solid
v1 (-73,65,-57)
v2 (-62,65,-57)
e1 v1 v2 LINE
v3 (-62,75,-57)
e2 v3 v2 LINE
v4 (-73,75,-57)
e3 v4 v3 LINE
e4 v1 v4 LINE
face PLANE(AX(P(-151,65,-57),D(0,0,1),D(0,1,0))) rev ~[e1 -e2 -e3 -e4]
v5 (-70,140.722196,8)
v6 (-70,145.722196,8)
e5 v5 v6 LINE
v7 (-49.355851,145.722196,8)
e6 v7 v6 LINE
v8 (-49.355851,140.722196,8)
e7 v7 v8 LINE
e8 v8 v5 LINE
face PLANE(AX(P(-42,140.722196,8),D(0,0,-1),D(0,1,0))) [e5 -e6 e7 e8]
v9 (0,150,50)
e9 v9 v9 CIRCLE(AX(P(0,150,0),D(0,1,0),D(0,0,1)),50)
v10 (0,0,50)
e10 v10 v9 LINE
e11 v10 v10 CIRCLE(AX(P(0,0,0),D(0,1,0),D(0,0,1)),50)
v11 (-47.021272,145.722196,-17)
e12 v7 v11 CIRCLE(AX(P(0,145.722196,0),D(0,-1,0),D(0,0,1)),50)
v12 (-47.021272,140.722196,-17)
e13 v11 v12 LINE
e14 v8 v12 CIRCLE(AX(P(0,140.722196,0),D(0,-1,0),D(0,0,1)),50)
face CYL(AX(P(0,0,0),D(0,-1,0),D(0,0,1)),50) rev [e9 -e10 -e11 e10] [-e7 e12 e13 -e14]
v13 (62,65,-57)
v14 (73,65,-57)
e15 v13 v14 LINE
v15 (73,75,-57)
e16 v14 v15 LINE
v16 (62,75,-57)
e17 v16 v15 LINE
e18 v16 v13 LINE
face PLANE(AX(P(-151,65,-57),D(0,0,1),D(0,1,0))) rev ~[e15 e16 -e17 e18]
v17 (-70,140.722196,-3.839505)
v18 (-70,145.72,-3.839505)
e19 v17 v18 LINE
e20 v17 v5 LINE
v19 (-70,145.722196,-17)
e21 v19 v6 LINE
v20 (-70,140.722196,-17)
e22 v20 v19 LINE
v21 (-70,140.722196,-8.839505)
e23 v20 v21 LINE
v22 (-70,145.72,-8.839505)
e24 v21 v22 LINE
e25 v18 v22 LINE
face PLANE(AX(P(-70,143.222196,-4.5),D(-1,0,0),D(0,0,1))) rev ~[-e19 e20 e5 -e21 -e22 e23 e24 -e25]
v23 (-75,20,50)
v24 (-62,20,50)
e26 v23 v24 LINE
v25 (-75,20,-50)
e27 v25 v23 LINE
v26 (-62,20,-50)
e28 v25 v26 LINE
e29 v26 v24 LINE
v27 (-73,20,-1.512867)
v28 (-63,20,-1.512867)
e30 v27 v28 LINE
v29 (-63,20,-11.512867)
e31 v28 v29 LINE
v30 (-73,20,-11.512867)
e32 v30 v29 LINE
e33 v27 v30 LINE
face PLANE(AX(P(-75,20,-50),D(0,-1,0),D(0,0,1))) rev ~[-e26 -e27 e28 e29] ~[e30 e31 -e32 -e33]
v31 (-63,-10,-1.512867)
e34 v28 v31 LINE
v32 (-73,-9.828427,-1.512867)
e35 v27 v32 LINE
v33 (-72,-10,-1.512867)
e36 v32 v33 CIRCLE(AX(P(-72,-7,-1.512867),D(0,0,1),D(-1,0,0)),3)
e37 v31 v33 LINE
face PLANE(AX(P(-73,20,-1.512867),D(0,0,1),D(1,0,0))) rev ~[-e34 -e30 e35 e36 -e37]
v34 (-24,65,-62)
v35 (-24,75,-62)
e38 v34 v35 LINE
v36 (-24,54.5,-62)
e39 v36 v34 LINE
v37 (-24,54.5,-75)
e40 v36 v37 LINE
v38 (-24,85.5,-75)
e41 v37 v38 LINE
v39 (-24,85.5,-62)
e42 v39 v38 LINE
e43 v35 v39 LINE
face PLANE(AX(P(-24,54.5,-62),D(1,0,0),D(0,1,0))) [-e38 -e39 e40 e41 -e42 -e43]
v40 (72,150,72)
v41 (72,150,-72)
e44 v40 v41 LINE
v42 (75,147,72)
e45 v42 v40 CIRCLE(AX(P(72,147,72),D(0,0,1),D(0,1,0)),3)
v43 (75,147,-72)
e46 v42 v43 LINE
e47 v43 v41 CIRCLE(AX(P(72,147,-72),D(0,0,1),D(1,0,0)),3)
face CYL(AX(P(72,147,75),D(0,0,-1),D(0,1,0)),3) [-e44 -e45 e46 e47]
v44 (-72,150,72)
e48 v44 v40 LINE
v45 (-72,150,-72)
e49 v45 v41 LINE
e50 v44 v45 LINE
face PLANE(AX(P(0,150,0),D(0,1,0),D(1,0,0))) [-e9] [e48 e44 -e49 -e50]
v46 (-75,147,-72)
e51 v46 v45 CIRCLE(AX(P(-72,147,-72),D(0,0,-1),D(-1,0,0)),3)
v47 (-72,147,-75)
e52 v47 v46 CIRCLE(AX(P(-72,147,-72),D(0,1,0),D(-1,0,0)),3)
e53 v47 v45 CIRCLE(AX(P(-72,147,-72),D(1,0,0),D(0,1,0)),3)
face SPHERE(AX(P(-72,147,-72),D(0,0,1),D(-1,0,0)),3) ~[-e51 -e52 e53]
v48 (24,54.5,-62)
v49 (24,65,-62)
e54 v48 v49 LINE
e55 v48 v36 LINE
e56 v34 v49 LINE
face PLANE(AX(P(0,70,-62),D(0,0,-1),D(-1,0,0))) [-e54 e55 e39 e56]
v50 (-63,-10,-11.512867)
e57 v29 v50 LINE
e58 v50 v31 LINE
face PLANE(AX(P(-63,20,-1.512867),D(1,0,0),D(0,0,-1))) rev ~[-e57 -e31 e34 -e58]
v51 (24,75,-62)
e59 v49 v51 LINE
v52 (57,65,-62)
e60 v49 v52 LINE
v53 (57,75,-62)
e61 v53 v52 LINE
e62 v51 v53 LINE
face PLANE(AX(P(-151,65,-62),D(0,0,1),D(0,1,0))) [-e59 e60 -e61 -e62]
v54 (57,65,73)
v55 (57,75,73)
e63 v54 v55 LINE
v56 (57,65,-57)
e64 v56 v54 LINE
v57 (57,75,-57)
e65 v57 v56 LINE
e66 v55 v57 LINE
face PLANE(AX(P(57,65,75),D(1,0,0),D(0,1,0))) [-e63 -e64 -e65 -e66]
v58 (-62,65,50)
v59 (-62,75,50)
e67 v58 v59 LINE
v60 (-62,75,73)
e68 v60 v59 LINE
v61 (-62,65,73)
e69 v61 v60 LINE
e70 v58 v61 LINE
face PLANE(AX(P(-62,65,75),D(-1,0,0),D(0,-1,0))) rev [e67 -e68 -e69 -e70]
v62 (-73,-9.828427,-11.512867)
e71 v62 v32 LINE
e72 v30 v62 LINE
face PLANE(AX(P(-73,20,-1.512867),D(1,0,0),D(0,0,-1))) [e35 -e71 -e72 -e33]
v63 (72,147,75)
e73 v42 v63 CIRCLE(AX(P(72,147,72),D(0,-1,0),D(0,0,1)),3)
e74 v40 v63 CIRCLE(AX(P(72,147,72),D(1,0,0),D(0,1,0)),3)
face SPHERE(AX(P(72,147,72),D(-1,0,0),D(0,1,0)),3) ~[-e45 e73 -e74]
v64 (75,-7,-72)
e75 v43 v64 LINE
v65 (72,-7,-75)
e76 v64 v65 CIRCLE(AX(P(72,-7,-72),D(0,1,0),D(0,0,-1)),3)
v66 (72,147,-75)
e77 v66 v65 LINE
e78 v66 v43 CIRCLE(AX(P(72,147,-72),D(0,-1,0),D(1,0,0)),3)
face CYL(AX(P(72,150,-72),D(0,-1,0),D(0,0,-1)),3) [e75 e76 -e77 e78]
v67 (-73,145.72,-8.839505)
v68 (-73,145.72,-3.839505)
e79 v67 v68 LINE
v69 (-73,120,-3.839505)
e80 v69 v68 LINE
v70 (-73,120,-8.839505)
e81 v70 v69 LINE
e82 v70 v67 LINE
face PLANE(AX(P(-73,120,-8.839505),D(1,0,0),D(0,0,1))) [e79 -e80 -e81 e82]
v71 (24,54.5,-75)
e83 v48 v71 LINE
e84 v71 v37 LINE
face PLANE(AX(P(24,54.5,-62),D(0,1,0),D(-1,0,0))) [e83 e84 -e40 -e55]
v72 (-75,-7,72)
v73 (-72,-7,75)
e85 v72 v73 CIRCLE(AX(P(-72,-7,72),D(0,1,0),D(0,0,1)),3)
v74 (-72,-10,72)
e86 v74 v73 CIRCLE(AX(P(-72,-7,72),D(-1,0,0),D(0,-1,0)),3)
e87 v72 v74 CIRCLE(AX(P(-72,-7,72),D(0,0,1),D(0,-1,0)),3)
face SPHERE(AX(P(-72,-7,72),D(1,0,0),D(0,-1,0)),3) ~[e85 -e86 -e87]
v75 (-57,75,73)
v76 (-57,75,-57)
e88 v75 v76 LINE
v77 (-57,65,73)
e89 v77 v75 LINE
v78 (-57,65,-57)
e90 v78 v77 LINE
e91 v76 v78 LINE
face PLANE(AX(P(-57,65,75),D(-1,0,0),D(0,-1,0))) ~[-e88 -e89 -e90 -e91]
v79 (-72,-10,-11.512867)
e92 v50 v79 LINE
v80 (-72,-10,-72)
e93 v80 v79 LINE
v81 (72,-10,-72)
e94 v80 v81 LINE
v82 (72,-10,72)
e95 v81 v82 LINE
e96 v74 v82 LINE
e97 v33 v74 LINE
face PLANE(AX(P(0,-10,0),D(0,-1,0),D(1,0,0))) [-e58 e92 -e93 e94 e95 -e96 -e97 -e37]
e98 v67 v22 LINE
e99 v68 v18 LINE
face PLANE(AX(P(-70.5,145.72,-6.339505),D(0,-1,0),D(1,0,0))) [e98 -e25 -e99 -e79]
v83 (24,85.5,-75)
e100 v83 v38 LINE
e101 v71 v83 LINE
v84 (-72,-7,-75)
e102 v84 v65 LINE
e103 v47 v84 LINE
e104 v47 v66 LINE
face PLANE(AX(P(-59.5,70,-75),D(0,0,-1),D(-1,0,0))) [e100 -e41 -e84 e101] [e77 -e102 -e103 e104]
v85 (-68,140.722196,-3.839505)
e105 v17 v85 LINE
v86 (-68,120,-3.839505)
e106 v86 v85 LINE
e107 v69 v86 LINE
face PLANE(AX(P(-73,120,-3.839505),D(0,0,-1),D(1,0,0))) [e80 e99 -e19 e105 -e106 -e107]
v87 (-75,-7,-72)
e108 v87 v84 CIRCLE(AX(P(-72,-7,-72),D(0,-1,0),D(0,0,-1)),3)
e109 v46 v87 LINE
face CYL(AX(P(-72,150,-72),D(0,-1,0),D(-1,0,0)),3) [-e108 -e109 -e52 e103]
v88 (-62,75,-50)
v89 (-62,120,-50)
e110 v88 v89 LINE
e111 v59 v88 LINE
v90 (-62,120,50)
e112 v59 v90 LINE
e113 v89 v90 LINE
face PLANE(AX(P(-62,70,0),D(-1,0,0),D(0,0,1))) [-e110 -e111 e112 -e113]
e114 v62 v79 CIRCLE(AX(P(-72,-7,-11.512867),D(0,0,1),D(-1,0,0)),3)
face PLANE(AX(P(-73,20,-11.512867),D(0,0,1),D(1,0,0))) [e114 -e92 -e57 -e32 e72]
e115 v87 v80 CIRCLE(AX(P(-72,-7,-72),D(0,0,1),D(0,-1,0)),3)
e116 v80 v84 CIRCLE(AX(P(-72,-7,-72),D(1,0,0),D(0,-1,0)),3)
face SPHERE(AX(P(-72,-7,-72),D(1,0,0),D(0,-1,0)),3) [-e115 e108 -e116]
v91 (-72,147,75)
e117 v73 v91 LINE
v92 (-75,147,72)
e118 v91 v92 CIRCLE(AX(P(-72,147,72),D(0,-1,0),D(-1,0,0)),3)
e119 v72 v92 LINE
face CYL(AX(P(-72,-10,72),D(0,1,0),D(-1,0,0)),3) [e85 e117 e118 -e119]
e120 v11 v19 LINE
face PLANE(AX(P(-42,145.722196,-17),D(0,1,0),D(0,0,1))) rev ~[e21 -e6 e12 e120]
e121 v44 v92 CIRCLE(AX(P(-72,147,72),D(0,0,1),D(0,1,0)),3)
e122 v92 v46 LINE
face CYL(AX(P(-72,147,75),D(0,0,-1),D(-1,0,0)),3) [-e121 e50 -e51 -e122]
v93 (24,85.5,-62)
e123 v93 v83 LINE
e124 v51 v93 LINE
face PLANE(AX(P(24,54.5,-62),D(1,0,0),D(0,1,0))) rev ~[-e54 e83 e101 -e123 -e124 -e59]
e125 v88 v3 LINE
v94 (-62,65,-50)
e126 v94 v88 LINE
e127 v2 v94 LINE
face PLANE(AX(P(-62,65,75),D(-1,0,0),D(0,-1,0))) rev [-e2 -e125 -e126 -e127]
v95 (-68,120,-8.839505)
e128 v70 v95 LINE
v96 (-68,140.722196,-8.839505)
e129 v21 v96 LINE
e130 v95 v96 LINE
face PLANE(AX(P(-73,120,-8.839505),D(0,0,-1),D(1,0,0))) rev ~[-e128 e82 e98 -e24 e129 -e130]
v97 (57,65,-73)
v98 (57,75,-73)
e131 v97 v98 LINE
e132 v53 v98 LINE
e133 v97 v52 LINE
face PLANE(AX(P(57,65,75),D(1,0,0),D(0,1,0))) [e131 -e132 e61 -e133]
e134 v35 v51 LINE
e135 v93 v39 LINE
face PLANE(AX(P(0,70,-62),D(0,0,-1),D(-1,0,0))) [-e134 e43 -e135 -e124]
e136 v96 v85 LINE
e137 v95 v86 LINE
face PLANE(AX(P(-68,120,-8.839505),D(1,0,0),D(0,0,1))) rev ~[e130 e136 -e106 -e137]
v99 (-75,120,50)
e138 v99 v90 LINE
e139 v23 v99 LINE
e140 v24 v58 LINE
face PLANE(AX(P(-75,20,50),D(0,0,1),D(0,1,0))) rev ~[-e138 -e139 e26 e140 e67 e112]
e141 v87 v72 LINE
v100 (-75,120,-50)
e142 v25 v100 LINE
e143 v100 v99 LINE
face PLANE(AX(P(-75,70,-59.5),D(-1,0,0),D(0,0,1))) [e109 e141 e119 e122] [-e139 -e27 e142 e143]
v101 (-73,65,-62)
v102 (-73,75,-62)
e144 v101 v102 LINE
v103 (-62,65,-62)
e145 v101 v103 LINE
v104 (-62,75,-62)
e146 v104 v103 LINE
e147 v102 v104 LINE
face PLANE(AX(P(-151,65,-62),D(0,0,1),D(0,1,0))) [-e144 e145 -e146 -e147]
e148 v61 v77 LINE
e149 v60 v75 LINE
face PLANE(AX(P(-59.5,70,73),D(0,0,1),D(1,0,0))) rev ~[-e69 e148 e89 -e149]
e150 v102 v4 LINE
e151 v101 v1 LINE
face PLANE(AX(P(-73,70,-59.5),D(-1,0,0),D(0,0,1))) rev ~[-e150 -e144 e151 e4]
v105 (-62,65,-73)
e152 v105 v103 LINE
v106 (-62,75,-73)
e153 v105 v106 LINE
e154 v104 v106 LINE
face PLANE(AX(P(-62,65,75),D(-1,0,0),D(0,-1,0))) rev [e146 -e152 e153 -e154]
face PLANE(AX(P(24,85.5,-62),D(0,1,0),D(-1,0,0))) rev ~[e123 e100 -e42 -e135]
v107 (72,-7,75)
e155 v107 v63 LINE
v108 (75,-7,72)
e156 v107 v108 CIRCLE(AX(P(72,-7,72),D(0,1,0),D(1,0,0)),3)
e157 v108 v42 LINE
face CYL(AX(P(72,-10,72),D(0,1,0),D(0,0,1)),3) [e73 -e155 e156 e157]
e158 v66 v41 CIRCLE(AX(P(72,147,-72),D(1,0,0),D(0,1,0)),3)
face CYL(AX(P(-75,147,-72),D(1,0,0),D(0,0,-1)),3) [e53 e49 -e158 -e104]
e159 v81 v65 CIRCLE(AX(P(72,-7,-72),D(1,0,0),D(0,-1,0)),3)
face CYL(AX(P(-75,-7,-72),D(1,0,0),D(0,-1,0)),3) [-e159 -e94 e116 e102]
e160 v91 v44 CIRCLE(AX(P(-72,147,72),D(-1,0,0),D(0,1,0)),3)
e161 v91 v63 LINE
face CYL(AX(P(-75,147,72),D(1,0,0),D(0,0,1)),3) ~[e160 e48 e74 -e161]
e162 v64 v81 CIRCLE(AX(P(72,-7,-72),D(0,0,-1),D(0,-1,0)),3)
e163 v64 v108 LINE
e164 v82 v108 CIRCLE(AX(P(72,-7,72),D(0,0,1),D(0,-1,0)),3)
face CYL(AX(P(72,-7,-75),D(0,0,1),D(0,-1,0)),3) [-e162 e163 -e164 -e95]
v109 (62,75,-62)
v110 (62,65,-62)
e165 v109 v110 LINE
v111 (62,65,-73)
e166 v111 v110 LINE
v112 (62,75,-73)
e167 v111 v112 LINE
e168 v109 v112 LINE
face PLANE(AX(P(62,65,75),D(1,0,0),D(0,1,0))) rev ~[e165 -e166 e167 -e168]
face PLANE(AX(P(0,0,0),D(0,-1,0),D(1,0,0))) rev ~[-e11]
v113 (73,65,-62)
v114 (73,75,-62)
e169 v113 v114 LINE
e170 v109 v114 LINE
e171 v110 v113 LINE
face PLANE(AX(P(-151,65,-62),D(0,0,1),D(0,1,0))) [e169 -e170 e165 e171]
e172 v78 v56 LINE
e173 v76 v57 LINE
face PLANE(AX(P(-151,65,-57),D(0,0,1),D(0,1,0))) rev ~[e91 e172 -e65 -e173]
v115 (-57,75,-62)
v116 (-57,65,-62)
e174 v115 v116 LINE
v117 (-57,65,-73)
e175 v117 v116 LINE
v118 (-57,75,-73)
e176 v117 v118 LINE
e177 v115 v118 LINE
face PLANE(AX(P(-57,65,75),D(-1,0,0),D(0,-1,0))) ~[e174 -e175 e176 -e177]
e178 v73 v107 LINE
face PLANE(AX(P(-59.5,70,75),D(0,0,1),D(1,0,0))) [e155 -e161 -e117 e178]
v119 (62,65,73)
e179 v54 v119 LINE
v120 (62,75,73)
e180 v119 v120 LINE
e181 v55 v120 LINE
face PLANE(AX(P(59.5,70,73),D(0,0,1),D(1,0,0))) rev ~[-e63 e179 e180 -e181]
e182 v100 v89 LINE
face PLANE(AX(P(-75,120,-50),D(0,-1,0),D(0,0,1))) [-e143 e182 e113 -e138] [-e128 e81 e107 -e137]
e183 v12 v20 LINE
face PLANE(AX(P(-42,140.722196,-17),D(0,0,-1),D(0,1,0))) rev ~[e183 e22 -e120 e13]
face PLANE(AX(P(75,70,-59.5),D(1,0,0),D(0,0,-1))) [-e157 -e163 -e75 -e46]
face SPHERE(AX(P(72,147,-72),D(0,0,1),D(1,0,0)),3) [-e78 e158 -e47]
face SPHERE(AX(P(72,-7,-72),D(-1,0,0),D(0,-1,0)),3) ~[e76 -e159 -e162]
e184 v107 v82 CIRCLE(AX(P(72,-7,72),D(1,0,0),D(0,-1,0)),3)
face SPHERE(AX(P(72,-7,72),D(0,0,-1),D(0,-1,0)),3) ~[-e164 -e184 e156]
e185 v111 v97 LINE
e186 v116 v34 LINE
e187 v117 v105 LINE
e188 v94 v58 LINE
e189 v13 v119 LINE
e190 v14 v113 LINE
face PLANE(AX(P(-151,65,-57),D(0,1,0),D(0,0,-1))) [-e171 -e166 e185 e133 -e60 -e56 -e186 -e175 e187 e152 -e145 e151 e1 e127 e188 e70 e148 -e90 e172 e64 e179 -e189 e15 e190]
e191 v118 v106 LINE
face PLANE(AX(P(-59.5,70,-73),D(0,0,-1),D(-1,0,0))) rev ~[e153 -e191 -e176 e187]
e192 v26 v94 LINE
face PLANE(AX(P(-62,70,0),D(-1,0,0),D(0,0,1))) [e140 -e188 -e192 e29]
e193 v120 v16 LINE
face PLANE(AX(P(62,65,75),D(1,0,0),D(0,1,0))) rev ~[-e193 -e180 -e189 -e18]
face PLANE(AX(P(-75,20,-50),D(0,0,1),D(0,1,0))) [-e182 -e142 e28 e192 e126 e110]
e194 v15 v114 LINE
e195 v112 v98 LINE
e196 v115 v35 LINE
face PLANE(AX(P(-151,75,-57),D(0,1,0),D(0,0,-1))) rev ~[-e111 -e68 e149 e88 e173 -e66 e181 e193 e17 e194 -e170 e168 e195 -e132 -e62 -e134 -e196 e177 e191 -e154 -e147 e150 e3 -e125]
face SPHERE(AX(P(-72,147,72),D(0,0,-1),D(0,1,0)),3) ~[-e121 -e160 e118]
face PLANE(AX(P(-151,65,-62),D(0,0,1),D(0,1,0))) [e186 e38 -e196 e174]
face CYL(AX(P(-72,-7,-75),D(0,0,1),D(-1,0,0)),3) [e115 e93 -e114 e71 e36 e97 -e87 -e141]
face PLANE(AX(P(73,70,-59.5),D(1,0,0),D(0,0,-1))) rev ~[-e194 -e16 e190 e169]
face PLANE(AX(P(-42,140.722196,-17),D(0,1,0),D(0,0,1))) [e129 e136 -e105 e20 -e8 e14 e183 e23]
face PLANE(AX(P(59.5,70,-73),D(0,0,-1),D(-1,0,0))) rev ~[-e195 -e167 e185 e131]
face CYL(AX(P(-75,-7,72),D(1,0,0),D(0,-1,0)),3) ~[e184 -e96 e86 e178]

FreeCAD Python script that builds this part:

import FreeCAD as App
import Part
import Sketcher
Q = App.Units.Quantity


def edges_at(feature, points):
    """Names of the edges that pass closest to the given points."""
    edges = feature.Shape.Edges
    near = lambda p: min(range(len(edges)), key=lambda i: edges[i].distToShape(Part.Vertex(*p))[0])
    return sorted({f"Edge{near(p) + 1}" for p in points})

doc = App.newDocument("Part")
params = doc.addObject("Spreadsheet::Sheet", "Params")
for row, (alias, value) in enumerate([
    ("sketch1_diameter", "100 mm"),
    ("sketch1_width", "150 mm"),
    ("pad1_length", "150 mm"),
    ("sketch2_width", "150 mm"),
    ("pad2_length", "10 mm"),
    ("sketch3_width", "5 mm"),
    ("sketch3_height", "10 mm"),
    ("pocket1_length", "452 mm"),
    ("sketch4_width", "10 mm"),
    ("sketch4_height", "5 mm"),
    ("sketch5_width", "48 mm"),
    ("sketch5_height", "31 mm"),
    ("pocket3_length", "226 mm"),
    ("pocket3_length2", "13 mm"),
    ("fillet_radius", "3 mm"),
    ("sketch6_width", "100 mm"),
    ("pocket4_length", "13 mm"),
    ("sketch7_width", "10 mm"),
    ("pocket5_length", "35 mm"),
    ("sketch8_width", "5 mm"),
    ("pocket6_length", "25.72 mm"),
    ("sketch9_width", "5 mm"),
    ("sketch9_height", "25 mm"),
    ("pocket7_length", "28 mm"),
    ("sketch10_width", "5 mm"),
    ("sketch10_height", "10 mm"),
    ("pad3_length", "2 mm"),
    ("sketch11_width", "5 mm"),
    ("sketch11_height", "10 mm"),
    ("pad4_length", "2 mm"),
    ("sketch12_width", "10 mm"),
    ("sketch12_height", "5 mm"),
    ("pad5_length", "2 mm"),
    ("sketch13_width", "10 mm"),
    ("sketch13_height", "5 mm"),
    ("pad6_length", "2 mm"),
], start=1):
    params.set(f"A{row}", alias)
    params.set(f"B{row}", "=" + value)
    params.setAlias(f"B{row}", alias)

body = doc.addObject("PartDesign::Body", "Body")

sketch1 = body.newObject("Sketcher::SketchObject", "Sketch")
sketch1.AttachmentSupport = (doc.getObject("XZ_Plane"), [""])
sketch1.MapMode = "FlatFace"
sketch1.addGeometry(Part.LineSegment(App.Vector(-75, -75, 0), App.Vector(-75, 75, 0)), False)
sketch1.addGeometry(Part.LineSegment(App.Vector(-75, 75, 0), App.Vector(75, 75, 0)), False)
sketch1.addGeometry(Part.LineSegment(App.Vector(75, 75, 0), App.Vector(75, -75, 0)), False)
sketch1.addGeometry(Part.LineSegment(App.Vector(75, -75, 0), App.Vector(-75, -75, 0)), False)
sketch1.addGeometry(Part.Circle(App.Vector(0, 0, 0), App.Vector(0, 0, 1), 50), False)
sketch1.addConstraint(Sketcher.Constraint("Coincident", 0, 2, 1, 1))
sketch1.addConstraint(Sketcher.Constraint("Coincident", 1, 2, 2, 1))
sketch1.addConstraint(Sketcher.Constraint("Coincident", 2, 2, 3, 1))
sketch1.addConstraint(Sketcher.Constraint("Coincident", 3, 2, 0, 1))
sketch1.addConstraint(Sketcher.Constraint("Vertical", 0))
sketch1.addConstraint(Sketcher.Constraint("Horizontal", 1))
sketch1.addConstraint(Sketcher.Constraint("Vertical", 2))
sketch1.addConstraint(Sketcher.Constraint("Horizontal", 3))
sketch1.addConstraint(Sketcher.Constraint("Coincident", 4, 3, -1, 1))
sketch1.addConstraint(Sketcher.Constraint("Symmetric", 0, 2, 2, 2, -1, 1))
sketch1.addConstraint(Sketcher.Constraint("Equal", 3, 0))
sketch1.addConstraint(Sketcher.Constraint("Diameter", 4, Q("100 mm")))
sketch1.addConstraint(Sketcher.Constraint("DistanceX", 1, 1, 1, 2, Q("150 mm")))
sketch1.setExpression("Constraints[11]", "Params.sketch1_diameter")
sketch1.setExpression("Constraints[12]", "Params.sketch1_width")
pad1 = body.newObject("PartDesign::Pad", "Pad")
pad1.Profile = sketch1
pad1.setExpression("Length", "Params.pad1_length")
pad1.Reversed = True

sketch2 = body.newObject("Sketcher::SketchObject", "Sketch001")
sketch2.AttachmentSupport = (doc.getObject("XZ_Plane"), [""])
sketch2.MapMode = "FlatFace"
sketch2.addGeometry(Part.LineSegment(App.Vector(-75, 75, 0), App.Vector(-75, -75, 0)), False)
sketch2.addGeometry(Part.LineSegment(App.Vector(-75, -75, 0), App.Vector(75, -75, 0)), False)
sketch2.addGeometry(Part.LineSegment(App.Vector(75, -75, 0), App.Vector(75, 75, 0)), False)
sketch2.addGeometry(Part.LineSegment(App.Vector(75, 75, 0), App.Vector(-75, 75, 0)), False)
sketch2.addConstraint(Sketcher.Constraint("Coincident", 0, 2, 1, 1))
sketch2.addConstraint(Sketcher.Constraint("Coincident", 1, 2, 2, 1))
sketch2.addConstraint(Sketcher.Constraint("Coincident", 2, 2, 3, 1))
sketch2.addConstraint(Sketcher.Constraint("Coincident", 3, 2, 0, 1))
sketch2.addConstraint(Sketcher.Constraint("Vertical", 0))
sketch2.addConstraint(Sketcher.Constraint("Horizontal", 1))
sketch2.addConstraint(Sketcher.Constraint("Vertical", 2))
sketch2.addConstraint(Sketcher.Constraint("Horizontal", 3))
sketch2.addConstraint(Sketcher.Constraint("Symmetric", 0, 2, 2, 2, -1, 1))
sketch2.addConstraint(Sketcher.Constraint("Equal", 3, 0))
sketch2.addConstraint(Sketcher.Constraint("DistanceX", 1, 1, 1, 2, Q("150 mm")))
sketch2.setExpression("Constraints[10]", "Params.sketch2_width")
pad2 = body.newObject("PartDesign::Pad", "Pad001")
pad2.Profile = sketch2
pad2.setExpression("Length", "Params.pad2_length")

sketch3 = body.newObject("Sketcher::SketchObject", "Sketch002")
sketch3.AttachmentSupport = (doc.getObject("XY_Plane"), [""])
sketch3.MapMode = "FlatFace"
sketch3.AttachmentOffset = App.Placement(App.Vector(0, 0, 75), App.Rotation())
sketch3.addGeometry(Part.LineSegment(App.Vector(57, 75, 0), App.Vector(57, 65, 0)), False)
sketch3.addGeometry(Part.LineSegment(App.Vector(57, 65, 0), App.Vector(62, 65, 0)), False)
sketch3.addGeometry(Part.LineSegment(App.Vector(62, 65, 0), App.Vector(62, 75, 0)), False)
sketch3.addGeometry(Part.LineSegment(App.Vector(62, 75, 0), App.Vector(57, 75, 0)), False)
sketch3.addConstraint(Sketcher.Constraint("Coincident", 0, 2, 1, 1))
sketch3.addConstraint(Sketcher.Constraint("Coincident", 1, 2, 2, 1))
sketch3.addConstraint(Sketcher.Constraint("Coincident", 2, 2, 3, 1))
sketch3.addConstraint(Sketcher.Constraint("Coincident", 3, 2, 0, 1))
sketch3.addConstraint(Sketcher.Constraint("Vertical", 0))
sketch3.addConstraint(Sketcher.Constraint("Horizontal", 1))
sketch3.addConstraint(Sketcher.Constraint("Vertical", 2))
sketch3.addConstraint(Sketcher.Constraint("Horizontal", 3))
sketch3.addConstraint(Sketcher.Constraint("DistanceX", 1, 1, 1, 2, Q("5 mm")))
sketch3.addConstraint(Sketcher.Constraint("DistanceY", 0, 2, 0, 1, Q("10 mm")))
sketch3.addConstraint(Sketcher.Constraint("DistanceX", -1, 1, 0, 2, Q("57 mm")))
sketch3.addConstraint(Sketcher.Constraint("DistanceY", -1, 1, 0, 2, Q("65 mm")))
sketch3.setExpression("Constraints[8]", "Params.sketch3_width")
sketch3.setExpression("Constraints[9]", "Params.sketch3_height")
pocket1 = body.newObject("PartDesign::Pocket", "Pocket")
pocket1.Profile = sketch3
pocket1.setExpression("Length", "Params.pocket1_length")
pocket1.Midplane = True
doc.recompute()

mirrored = body.newObject("PartDesign::Mirrored", "Mirrored")
mirrored.Originals = [pocket1]
mirrored.MirrorPlane = (doc.getObject("YZ_Plane"), [""])
body.Tip = mirrored

sketch4 = body.newObject("Sketcher::SketchObject", "Sketch003")
sketch4.AttachmentSupport = (doc.getObject("YZ_Plane"), [""])
sketch4.MapMode = "FlatFace"
sketch4.AttachmentOffset = App.Placement(App.Vector(0, 0, 75), App.Rotation())
sketch4.addGeometry(Part.LineSegment(App.Vector(75, -57, 0), App.Vector(65, -57, 0)), False)
sketch4.addGeometry(Part.LineSegment(App.Vector(65, -57, 0), App.Vector(65, -62, 0)), False)
sketch4.addGeometry(Part.LineSegment(App.Vector(65, -62, 0), App.Vector(75, -62, 0)), False)
sketch4.addGeometry(Part.LineSegment(App.Vector(75, -62, 0), App.Vector(75, -57, 0)), False)
sketch4.addConstraint(Sketcher.Constraint("Coincident", 0, 2, 1, 1))
sketch4.addConstraint(Sketcher.Constraint("Coincident", 1, 2, 2, 1))
sketch4.addConstraint(Sketcher.Constraint("Coincident", 2, 2, 3, 1))
sketch4.addConstraint(Sketcher.Constraint("Coincident", 3, 2, 0, 1))
sketch4.addConstraint(Sketcher.Constraint("Horizontal", 0))
sketch4.addConstraint(Sketcher.Constraint("Vertical", 1))
sketch4.addConstraint(Sketcher.Constraint("Horizontal", 2))
sketch4.addConstraint(Sketcher.Constraint("Vertical", 3))
sketch4.addConstraint(Sketcher.Constraint("DistanceX", 0, 2, 0, 1, Q("10 mm")))
sketch4.addConstraint(Sketcher.Constraint("DistanceY", 1, 2, 1, 1, Q("5 mm")))
sketch4.addConstraint(Sketcher.Constraint("DistanceX", -1, 1, 0, 2, Q("65 mm")))
sketch4.addConstraint(Sketcher.Constraint("DistanceY", 0, 2, -1, 1, Q("57 mm")))
sketch4.setExpression("Constraints[8]", "Params.sketch4_width")
sketch4.setExpression("Constraints[9]", "Params.sketch4_height")
pocket2 = body.newObject("PartDesign::Pocket", "Pocket001")
pocket2.Profile = sketch4
pocket2.Type = "ThroughAll"
pocket2.Midplane = True

sketch5 = body.newObject("Sketcher::SketchObject", "Sketch004")
sketch5.AttachmentSupport = (doc.getObject("XY_Plane"), [""])
sketch5.MapMode = "FlatFace"
sketch5.AttachmentOffset = App.Placement(App.Vector(0, 0, -75), App.Rotation())
sketch5.addGeometry(Part.LineSegment(App.Vector(24, 86, 0), App.Vector(24, 54, 0)), False)
sketch5.addGeometry(Part.LineSegment(App.Vector(24, 54, 0), App.Vector(-24, 54, 0)), False)
sketch5.addGeometry(Part.LineSegment(App.Vector(-24, 54, 0), App.Vector(-24, 86, 0)), False)
sketch5.addGeometry(Part.LineSegment(App.Vector(-24, 86, 0), App.Vector(24, 86, 0)), False)
sketch5.addConstraint(Sketcher.Constraint("Coincident", 0, 2, 1, 1))
sketch5.addConstraint(Sketcher.Constraint("Coincident", 1, 2, 2, 1))
sketch5.addConstraint(Sketcher.Constraint("Coincident", 2, 2, 3, 1))
sketch5.addConstraint(Sketcher.Constraint("Coincident", 3, 2, 0, 1))
sketch5.addConstraint(Sketcher.Constraint("Vertical", 0))
sketch5.addConstraint(Sketcher.Constraint("Horizontal", 1))
sketch5.addConstraint(Sketcher.Constraint("Vertical", 2))
sketch5.addConstraint(Sketcher.Constraint("Horizontal", 3))
sketch5.addConstraint(Sketcher.Constraint("DistanceX", 1, 2, 1, 1, Q("48 mm")))
sketch5.addConstraint(Sketcher.Constraint("DistanceY", 0, 2, 0, 1, Q("31 mm")))
sketch5.addConstraint(Sketcher.Constraint("DistanceX", -1, 1, 0, 2, Q("24 mm")))
sketch5.addConstraint(Sketcher.Constraint("DistanceY", -1, 1, 0, 2, Q("54.5 mm")))
sketch5.setExpression("Constraints[8]", "Params.sketch5_width")
sketch5.setExpression("Constraints[9]", "Params.sketch5_height")
pocket3 = body.newObject("PartDesign::Pocket", "Pocket002")
pocket3.Profile = sketch5
pocket3.Type = "TwoLengths"
pocket3.setExpression("Length", "Params.pocket3_length")
pocket3.setExpression("Length2", "Params.pocket3_length2")
doc.recompute()

fillet = body.newObject("PartDesign::Fillet", "Fillet")
fillet.Base = (pocket3, edges_at(pocket3, [
    (-75, 150, 0),
    (0, 150, 75),
    (0, -10, -75),
    (75, -10, 0),
    (0, -10, 75),
    (-75, -10, 0),
    (75, 150, 0),
    (75, 70, 75),
    (-75, 70, 75),
    (-75, 70, -75),
    (75, 70, -75),
    (0, 150, -75),
]))
fillet.setExpression("Radius", "Params.fillet_radius")

sketch6 = body.newObject("Sketcher::SketchObject", "Sketch005")
sketch6.AttachmentSupport = (doc.getObject("YZ_Plane"), [""])
sketch6.MapMode = "FlatFace"
sketch6.AttachmentOffset = App.Placement(App.Vector(0, 0, -75), App.Rotation())
sketch6.addGeometry(Part.LineSegment(App.Vector(120, -50, 0), App.Vector(20, -50, 0)), False)
sketch6.addGeometry(Part.LineSegment(App.Vector(20, -50, 0), App.Vector(20, 50, 0)), False)
sketch6.addGeometry(Part.LineSegment(App.Vector(20, 50, 0), App.Vector(120, 50, 0)), False)
sketch6.addGeometry(Part.LineSegment(App.Vector(120, 50, 0), App.Vector(120, -50, 0)), False)
sketch6.addConstraint(Sketcher.Constraint("Coincident", 0, 2, 1, 1))
sketch6.addConstraint(Sketcher.Constraint("Coincident", 1, 2, 2, 1))
sketch6.addConstraint(Sketcher.Constraint("Coincident", 2, 2, 3, 1))
sketch6.addConstraint(Sketcher.Constraint("Coincident", 3, 2, 0, 1))
sketch6.addConstraint(Sketcher.Constraint("Horizontal", 0))
sketch6.addConstraint(Sketcher.Constraint("Vertical", 1))
sketch6.addConstraint(Sketcher.Constraint("Horizontal", 2))
sketch6.addConstraint(Sketcher.Constraint("Vertical", 3))
sketch6.addConstraint(Sketcher.Constraint("Equal", 2, 1))
sketch6.addConstraint(Sketcher.Constraint("DistanceX", 0, 2, 0, 1, Q("100 mm")))
sketch6.addConstraint(Sketcher.Constraint("DistanceX", -1, 1, 0, 2, Q("20 mm")))
sketch6.addConstraint(Sketcher.Constraint("DistanceY", 0, 2, -1, 1, Q("50 mm")))
sketch6.setExpression("Constraints[9]", "Params.sketch6_width")
pocket4 = body.newObject("PartDesign::Pocket", "Pocket003")
pocket4.Profile = sketch6
pocket4.setExpression("Length", "Params.pocket4_length")
pocket4.Reversed = True

sketch7 = body.newObject("Sketcher::SketchObject", "Sketch006")
sketch7.AttachmentSupport = (doc.getObject("XZ_Plane"), [""])
sketch7.MapMode = "FlatFace"
sketch7.AttachmentOffset = App.Placement(App.Vector(0, 0, -20), App.Rotation())
sketch7.addGeometry(Part.LineSegment(App.Vector(-73, -12, 0), App.Vector(-73, -2, 0)), False)
sketch7.addGeometry(Part.LineSegment(App.Vector(-73, -2, 0), App.Vector(-63, -2, 0)), False)
sketch7.addGeometry(Part.LineSegment(App.Vector(-63, -2, 0), App.Vector(-63, -12, 0)), False)
sketch7.addGeometry(Part.LineSegment(App.Vector(-63, -12, 0), App.Vector(-73, -12, 0)), False)
sketch7.addConstraint(Sketcher.Constraint("Coincident", 0, 2, 1, 1))
sketch7.addConstraint(Sketcher.Constraint("Coincident", 1, 2, 2, 1))
sketch7.addConstraint(Sketcher.Constraint("Coincident", 2, 2, 3, 1))
sketch7.addConstraint(Sketcher.Constraint("Coincident", 3, 2, 0, 1))
sketch7.addConstraint(Sketcher.Constraint("Vertical", 0))
sketch7.addConstraint(Sketcher.Constraint("Horizontal", 1))
sketch7.addConstraint(Sketcher.Constraint("Vertical", 2))
sketch7.addConstraint(Sketcher.Constraint("Horizontal", 3))
sketch7.addConstraint(Sketcher.Constraint("Equal", 3, 0))
sketch7.addConstraint(Sketcher.Constraint("DistanceX", 1, 1, 1, 2, Q("10 mm")))
sketch7.addConstraint(Sketcher.Constraint("DistanceX", 0, 2, -1, 1, Q("73 mm")))
sketch7.addConstraint(Sketcher.Constraint("DistanceY", 0, 2, -1, 1, Q("1.512867 mm")))
sketch7.setExpression("Constraints[9]", "Params.sketch7_width")
pocket5 = body.newObject("PartDesign::Pocket", "Pocket004")
pocket5.Profile = sketch7
pocket5.setExpression("Length", "Params.pocket5_length")
pocket5.Reversed = True

sketch8 = body.newObject("Sketcher::SketchObject", "Sketch007")
sketch8.AttachmentSupport = (doc.getObject("XZ_Plane"), [""])
sketch8.MapMode = "FlatFace"
sketch8.AttachmentOffset = App.Placement(App.Vector(0, 0, -120), App.Rotation())
sketch8.addGeometry(Part.LineSegment(App.Vector(-73, -4, 0), App.Vector(-73, -9, 0)), False)
sketch8.addGeometry(Part.LineSegment(App.Vector(-73, -9, 0), App.Vector(-68, -9, 0)), False)
sketch8.addGeometry(Part.LineSegment(App.Vector(-68, -9, 0), App.Vector(-68, -4, 0)), False)
sketch8.addGeometry(Part.LineSegment(App.Vector(-68, -4, 0), App.Vector(-73, -4, 0)), False)
sketch8.addConstraint(Sketcher.Constraint("Coincident", 0, 2, 1, 1))
sketch8.addConstraint(Sketcher.Constraint("Coincident", 1, 2, 2, 1))
sketch8.addConstraint(Sketcher.Constraint("Coincident", 2, 2, 3, 1))
sketch8.addConstraint(Sketcher.Constraint("Coincident", 3, 2, 0, 1))
sketch8.addConstraint(Sketcher.Constraint("Vertical", 0))
sketch8.addConstraint(Sketcher.Constraint("Horizontal", 1))
sketch8.addConstraint(Sketcher.Constraint("Vertical", 2))
sketch8.addConstraint(Sketcher.Constraint("Horizontal", 3))
sketch8.addConstraint(Sketcher.Constraint("Equal", 3, 0))
sketch8.addConstraint(Sketcher.Constraint("DistanceX", 1, 1, 1, 2, Q("5 mm")))
sketch8.addConstraint(Sketcher.Constraint("DistanceX", 0, 2, -1, 1, Q("73 mm")))
sketch8.addConstraint(Sketcher.Constraint("DistanceY", 0, 2, -1, 1, Q("8.839505 mm")))
sketch8.setExpression("Constraints[9]", "Params.sketch8_width")
pocket6 = body.newObject("PartDesign::Pocket", "Pocket005")
pocket6.Profile = sketch8
pocket6.setExpression("Length", "Params.pocket6_length")

sketch9 = body.newObject("Sketcher::SketchObject", "Sketch008")
sketch9.AttachmentSupport = (doc.getObject("YZ_Plane"), [""])
sketch9.MapMode = "FlatFace"
sketch9.AttachmentOffset = App.Placement(App.Vector(0, 0, -42), App.Rotation())
sketch9.addGeometry(Part.LineSegment(App.Vector(146, -17, 0), App.Vector(141, -17, 0)), False)
sketch9.addGeometry(Part.LineSegment(App.Vector(141, -17, 0), App.Vector(141, 8, 0)), False)
sketch9.addGeometry(Part.LineSegment(App.Vector(141, 8, 0), App.Vector(146, 8, 0)), False)
sketch9.addGeometry(Part.LineSegment(App.Vector(146, 8, 0), App.Vector(146, -17, 0)), False)
sketch9.addConstraint(Sketcher.Constraint("Coincident", 0, 2, 1, 1))
sketch9.addConstraint(Sketcher.Constraint("Coincident", 1, 2, 2, 1))
sketch9.addConstraint(Sketcher.Constraint("Coincident", 2, 2, 3, 1))
sketch9.addConstraint(Sketcher.Constraint("Coincident", 3, 2, 0, 1))
sketch9.addConstraint(Sketcher.Constraint("Horizontal", 0))
sketch9.addConstraint(Sketcher.Constraint("Vertical", 1))
sketch9.addConstraint(Sketcher.Constraint("Horizontal", 2))
sketch9.addConstraint(Sketcher.Constraint("Vertical", 3))
sketch9.addConstraint(Sketcher.Constraint("DistanceX", 0, 2, 0, 1, Q("5 mm")))
sketch9.addConstraint(Sketcher.Constraint("DistanceY", 1, 1, 1, 2, Q("25 mm")))
sketch9.addConstraint(Sketcher.Constraint("DistanceY", 0, 2, -1, 1, Q("17 mm")))
sketch9.addConstraint(Sketcher.Constraint("DistanceX", -1, 1, 0, 2, Q("140.722196 mm")))
sketch9.setExpression("Constraints[8]", "Params.sketch9_width")
sketch9.setExpression("Constraints[9]", "Params.sketch9_height")
pocket7 = body.newObject("PartDesign::Pocket", "Pocket006")
pocket7.Profile = sketch9
pocket7.setExpression("Length", "Params.pocket7_length")

sketch10 = body.newObject("Sketcher::SketchObject", "Sketch009")
sketch10.AttachmentSupport = (doc.getObject("XY_Plane"), [""])
sketch10.MapMode = "FlatFace"
sketch10.AttachmentOffset = App.Placement(App.Vector(0, 0, 75), App.Rotation())
sketch10.addGeometry(Part.LineSegment(App.Vector(-62, 75, 0), App.Vector(-62, 65, 0)), False)
sketch10.addGeometry(Part.LineSegment(App.Vector(-62, 65, 0), App.Vector(-57, 65, 0)), False)
sketch10.addGeometry(Part.LineSegment(App.Vector(-57, 65, 0), App.Vector(-57, 75, 0)), False)
sketch10.addGeometry(Part.LineSegment(App.Vector(-57, 75, 0), App.Vector(-62, 75, 0)), False)
sketch10.addGeometry(Part.LineSegment(App.Vector(57, 75, 0), App.Vector(57, 65, 0)), False)
sketch10.addGeometry(Part.LineSegment(App.Vector(57, 65, 0), App.Vector(62, 65, 0)), False)
sketch10.addGeometry(Part.LineSegment(App.Vector(62, 65, 0), App.Vector(62, 75, 0)), False)
sketch10.addGeometry(Part.LineSegment(App.Vector(62, 75, 0), App.Vector(57, 75, 0)), False)
sketch10.addConstraint(Sketcher.Constraint("Coincident", 0, 2, 1, 1))
sketch10.addConstraint(Sketcher.Constraint("Coincident", 1, 2, 2, 1))
sketch10.addConstraint(Sketcher.Constraint("Coincident", 2, 2, 3, 1))
sketch10.addConstraint(Sketcher.Constraint("Coincident", 3, 2, 0, 1))
sketch10.addConstraint(Sketcher.Constraint("Coincident", 4, 2, 5, 1))
sketch10.addConstraint(Sketcher.Constraint("Coincident", 5, 2, 6, 1))
sketch10.addConstraint(Sketcher.Constraint("Coincident", 6, 2, 7, 1))
sketch10.addConstraint(Sketcher.Constraint("Coincident", 7, 2, 4, 1))
sketch10.addConstraint(Sketcher.Constraint("Vertical", 0))
sketch10.addConstraint(Sketcher.Constraint("Horizontal", 1))
sketch10.addConstraint(Sketcher.Constraint("Vertical", 2))
sketch10.addConstraint(Sketcher.Constraint("Horizontal", 3))
sketch10.addConstraint(Sketcher.Constraint("Vertical", 4))
sketch10.addConstraint(Sketcher.Constraint("Horizontal", 5))
sketch10.addConstraint(Sketcher.Constraint("Vertical", 6))
sketch10.addConstraint(Sketcher.Constraint("Horizontal", 7))
sketch10.addConstraint(Sketcher.Constraint("Symmetric", 1, 2, 4, 2, -2))
sketch10.addConstraint(Sketcher.Constraint("Symmetric", 3, 2, 6, 2, -2))
sketch10.addConstraint(Sketcher.Constraint("DistanceX", 1, 1, 1, 2, Q("5 mm")))
sketch10.addConstraint(Sketcher.Constraint("DistanceY", 0, 2, 0, 1, Q("10 mm")))
sketch10.addConstraint(Sketcher.Constraint("DistanceX", 0, 2, -1, 1, Q("62 mm")))
sketch10.addConstraint(Sketcher.Constraint("DistanceY", -1, 1, 0, 2, Q("65 mm")))
sketch10.setExpression("Constraints[18]", "Params.sketch10_width")
sketch10.setExpression("Constraints[19]", "Params.sketch10_height")
pad3 = body.newObject("PartDesign::Pad", "Pad002")
pad3.Profile = sketch10
pad3.setExpression("Length", "Params.pad3_length")
pad3.Reversed = True

sketch11 = body.newObject("Sketcher::SketchObject", "Sketch010")
sketch11.AttachmentSupport = (doc.getObject("XY_Plane"), [""])
sketch11.MapMode = "FlatFace"
sketch11.AttachmentOffset = App.Placement(App.Vector(0, 0, -75), App.Rotation())
sketch11.addGeometry(Part.LineSegment(App.Vector(-57, 75, 0), App.Vector(-57, 65, 0)), False)
sketch11.addGeometry(Part.LineSegment(App.Vector(-57, 65, 0), App.Vector(-62, 65, 0)), False)
sketch11.addGeometry(Part.LineSegment(App.Vector(-62, 65, 0), App.Vector(-62, 75, 0)), False)
sketch11.addGeometry(Part.LineSegment(App.Vector(-62, 75, 0), App.Vector(-57, 75, 0)), False)
sketch11.addGeometry(Part.LineSegment(App.Vector(62, 75, 0), App.Vector(62, 65, 0)), False)
sketch11.addGeometry(Part.LineSegment(App.Vector(62, 65, 0), App.Vector(57, 65, 0)), False)
sketch11.addGeometry(Part.LineSegment(App.Vector(57, 65, 0), App.Vector(57, 75, 0)), False)
sketch11.addGeometry(Part.LineSegment(App.Vector(57, 75, 0), App.Vector(62, 75, 0)), False)
sketch11.addConstraint(Sketcher.Constraint("Coincident", 0, 2, 1, 1))
sketch11.addConstraint(Sketcher.Constraint("Coincident", 1, 2, 2, 1))
sketch11.addConstraint(Sketcher.Constraint("Coincident", 2, 2, 3, 1))
sketch11.addConstraint(Sketcher.Constraint("Coincident", 3, 2, 0, 1))
sketch11.addConstraint(Sketcher.Constraint("Coincident", 4, 2, 5, 1))
sketch11.addConstraint(Sketcher.Constraint("Coincident", 5, 2, 6, 1))
sketch11.addConstraint(Sketcher.Constraint("Coincident", 6, 2, 7, 1))
sketch11.addConstraint(Sketcher.Constraint("Coincident", 7, 2, 4, 1))
sketch11.addConstraint(Sketcher.Constraint("Vertical", 0))
sketch11.addConstraint(Sketcher.Constraint("Horizontal", 1))
sketch11.addConstraint(Sketcher.Constraint("Vertical", 2))
sketch11.addConstraint(Sketcher.Constraint("Horizontal", 3))
sketch11.addConstraint(Sketcher.Constraint("Vertical", 4))
sketch11.addConstraint(Sketcher.Constraint("Horizontal", 5))
sketch11.addConstraint(Sketcher.Constraint("Vertical", 6))
sketch11.addConstraint(Sketcher.Constraint("Horizontal", 7))
sketch11.addConstraint(Sketcher.Constraint("Symmetric", 1, 2, 4, 2, -2))
sketch11.addConstraint(Sketcher.Constraint("Symmetric", 3, 2, 6, 2, -2))
sketch11.addConstraint(Sketcher.Constraint("DistanceX", 1, 2, 1, 1, Q("5 mm")))
sketch11.addConstraint(Sketcher.Constraint("DistanceY", 0, 2, 0, 1, Q("10 mm")))
sketch11.addConstraint(Sketcher.Constraint("DistanceX", 0, 2, -1, 1, Q("57 mm")))
sketch11.addConstraint(Sketcher.Constraint("DistanceY", -1, 1, 0, 2, Q("65 mm")))
sketch11.setExpression("Constraints[18]", "Params.sketch11_width")
sketch11.setExpression("Constraints[19]", "Params.sketch11_height")
pad4 = body.newObject("PartDesign::Pad", "Pad003")
pad4.Profile = sketch11
pad4.setExpression("Length", "Params.pad4_length")

sketch12 = body.newObject("Sketcher::SketchObject", "Sketch011")
sketch12.AttachmentSupport = (doc.getObject("YZ_Plane"), [""])
sketch12.MapMode = "FlatFace"
sketch12.AttachmentOffset = App.Placement(App.Vector(0, 0, 75), App.Rotation())
sketch12.addGeometry(Part.LineSegment(App.Vector(75, -57, 0), App.Vector(65, -57, 0)), False)
sketch12.addGeometry(Part.LineSegment(App.Vector(65, -57, 0), App.Vector(65, -62, 0)), False)
sketch12.addGeometry(Part.LineSegment(App.Vector(65, -62, 0), App.Vector(75, -62, 0)), False)
sketch12.addGeometry(Part.LineSegment(App.Vector(75, -62, 0), App.Vector(75, -57, 0)), False)
sketch12.addConstraint(Sketcher.Constraint("Coincident", 0, 2, 1, 1))
sketch12.addConstraint(Sketcher.Constraint("Coincident", 1, 2, 2, 1))
sketch12.addConstraint(Sketcher.Constraint("Coincident", 2, 2, 3, 1))
sketch12.addConstraint(Sketcher.Constraint("Coincident", 3, 2, 0, 1))
sketch12.addConstraint(Sketcher.Constraint("Horizontal", 0))
sketch12.addConstraint(Sketcher.Constraint("Vertical", 1))
sketch12.addConstraint(Sketcher.Constraint("Horizontal", 2))
sketch12.addConstraint(Sketcher.Constraint("Vertical", 3))
sketch12.addConstraint(Sketcher.Constraint("DistanceX", 0, 2, 0, 1, Q("10 mm")))
sketch12.addConstraint(Sketcher.Constraint("DistanceY", 1, 2, 1, 1, Q("5 mm")))
sketch12.addConstraint(Sketcher.Constraint("DistanceX", -1, 1, 0, 2, Q("65 mm")))
sketch12.addConstraint(Sketcher.Constraint("DistanceY", 0, 2, -1, 1, Q("57 mm")))
sketch12.setExpression("Constraints[8]", "Params.sketch12_width")
sketch12.setExpression("Constraints[9]", "Params.sketch12_height")
pad5 = body.newObject("PartDesign::Pad", "Pad004")
pad5.Profile = sketch12
pad5.setExpression("Length", "Params.pad5_length")
pad5.Reversed = True

sketch13 = body.newObject("Sketcher::SketchObject", "Sketch012")
sketch13.AttachmentSupport = (doc.getObject("YZ_Plane"), [""])
sketch13.MapMode = "FlatFace"
sketch13.AttachmentOffset = App.Placement(App.Vector(0, 0, -75), App.Rotation())
sketch13.addGeometry(Part.LineSegment(App.Vector(75, -62, 0), App.Vector(65, -62, 0)), False)
sketch13.addGeometry(Part.LineSegment(App.Vector(65, -62, 0), App.Vector(65, -57, 0)), False)
sketch13.addGeometry(Part.LineSegment(App.Vector(65, -57, 0), App.Vector(75, -57, 0)), False)
sketch13.addGeometry(Part.LineSegment(App.Vector(75, -57, 0), App.Vector(75, -62, 0)), False)
sketch13.addConstraint(Sketcher.Constraint("Coincident", 0, 2, 1, 1))
sketch13.addConstraint(Sketcher.Constraint("Coincident", 1, 2, 2, 1))
sketch13.addConstraint(Sketcher.Constraint("Coincident", 2, 2, 3, 1))
sketch13.addConstraint(Sketcher.Constraint("Coincident", 3, 2, 0, 1))
sketch13.addConstraint(Sketcher.Constraint("Horizontal", 0))
sketch13.addConstraint(Sketcher.Constraint("Vertical", 1))
sketch13.addConstraint(Sketcher.Constraint("Horizontal", 2))
sketch13.addConstraint(Sketcher.Constraint("Vertical", 3))
sketch13.addConstraint(Sketcher.Constraint("DistanceX", 0, 2, 0, 1, Q("10 mm")))
sketch13.addConstraint(Sketcher.Constraint("DistanceY", 1, 1, 1, 2, Q("5 mm")))
sketch13.addConstraint(Sketcher.Constraint("DistanceX", -1, 1, 0, 2, Q("65 mm")))
sketch13.addConstraint(Sketcher.Constraint("DistanceY", 0, 2, -1, 1, Q("62 mm")))
sketch13.setExpression("Constraints[8]", "Params.sketch13_width")
sketch13.setExpression("Constraints[9]", "Params.sketch13_height")
pad6 = body.newObject("PartDesign::Pad", "Pad005")
pad6.Profile = sketch13
pad6.setExpression("Length", "Params.pad6_length")

doc.recompute()
